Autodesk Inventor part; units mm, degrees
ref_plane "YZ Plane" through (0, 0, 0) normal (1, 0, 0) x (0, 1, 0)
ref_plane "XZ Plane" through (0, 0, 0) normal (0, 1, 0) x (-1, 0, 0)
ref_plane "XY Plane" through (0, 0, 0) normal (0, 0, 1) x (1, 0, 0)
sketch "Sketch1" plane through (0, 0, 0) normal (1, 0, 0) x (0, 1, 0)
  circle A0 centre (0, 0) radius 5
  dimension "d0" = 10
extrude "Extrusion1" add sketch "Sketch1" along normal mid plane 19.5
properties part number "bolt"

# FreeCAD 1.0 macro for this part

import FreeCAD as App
import Part
import Sketcher
Q = App.Units.Quantity

doc = App.newDocument("Part")
params = doc.addObject("Spreadsheet::Sheet", "Params")
for row, (alias, value) in enumerate([
    ("sketch1_diameter", "10 mm"),
    ("pad1_length", "19.5 mm"),
], start=1):
    params.set(f"A{row}", alias)
    params.set(f"B{row}", "=" + value)
    params.setAlias(f"B{row}", alias)

body = doc.addObject("PartDesign::Body", "Body")

# Sketch on YZ plane
sketch1 = body.newObject("Sketcher::SketchObject", "Sketch")
sketch1.AttachmentSupport = (doc.getObject("YZ_Plane"), [""])
sketch1.MapMode = "FlatFace"
sketch1.addGeometry(Part.Circle(App.Vector(0, 0, 0), App.Vector(0, 0, 1), 5), False)
sketch1.addConstraint(Sketcher.Constraint("Coincident", 0, 3, -1, 1))
sketch1.addConstraint(Sketcher.Constraint("Diameter", 0, Q("10 mm")))
sketch1.setExpression("Constraints[1]", "Params.sketch1_diameter")
pad1 = body.newObject("PartDesign::Pad", "Pad")
pad1.Profile = sketch1
pad1.setExpression("Length", "Params.pad1_length")
pad1.Midplane = True

doc.recompute()
